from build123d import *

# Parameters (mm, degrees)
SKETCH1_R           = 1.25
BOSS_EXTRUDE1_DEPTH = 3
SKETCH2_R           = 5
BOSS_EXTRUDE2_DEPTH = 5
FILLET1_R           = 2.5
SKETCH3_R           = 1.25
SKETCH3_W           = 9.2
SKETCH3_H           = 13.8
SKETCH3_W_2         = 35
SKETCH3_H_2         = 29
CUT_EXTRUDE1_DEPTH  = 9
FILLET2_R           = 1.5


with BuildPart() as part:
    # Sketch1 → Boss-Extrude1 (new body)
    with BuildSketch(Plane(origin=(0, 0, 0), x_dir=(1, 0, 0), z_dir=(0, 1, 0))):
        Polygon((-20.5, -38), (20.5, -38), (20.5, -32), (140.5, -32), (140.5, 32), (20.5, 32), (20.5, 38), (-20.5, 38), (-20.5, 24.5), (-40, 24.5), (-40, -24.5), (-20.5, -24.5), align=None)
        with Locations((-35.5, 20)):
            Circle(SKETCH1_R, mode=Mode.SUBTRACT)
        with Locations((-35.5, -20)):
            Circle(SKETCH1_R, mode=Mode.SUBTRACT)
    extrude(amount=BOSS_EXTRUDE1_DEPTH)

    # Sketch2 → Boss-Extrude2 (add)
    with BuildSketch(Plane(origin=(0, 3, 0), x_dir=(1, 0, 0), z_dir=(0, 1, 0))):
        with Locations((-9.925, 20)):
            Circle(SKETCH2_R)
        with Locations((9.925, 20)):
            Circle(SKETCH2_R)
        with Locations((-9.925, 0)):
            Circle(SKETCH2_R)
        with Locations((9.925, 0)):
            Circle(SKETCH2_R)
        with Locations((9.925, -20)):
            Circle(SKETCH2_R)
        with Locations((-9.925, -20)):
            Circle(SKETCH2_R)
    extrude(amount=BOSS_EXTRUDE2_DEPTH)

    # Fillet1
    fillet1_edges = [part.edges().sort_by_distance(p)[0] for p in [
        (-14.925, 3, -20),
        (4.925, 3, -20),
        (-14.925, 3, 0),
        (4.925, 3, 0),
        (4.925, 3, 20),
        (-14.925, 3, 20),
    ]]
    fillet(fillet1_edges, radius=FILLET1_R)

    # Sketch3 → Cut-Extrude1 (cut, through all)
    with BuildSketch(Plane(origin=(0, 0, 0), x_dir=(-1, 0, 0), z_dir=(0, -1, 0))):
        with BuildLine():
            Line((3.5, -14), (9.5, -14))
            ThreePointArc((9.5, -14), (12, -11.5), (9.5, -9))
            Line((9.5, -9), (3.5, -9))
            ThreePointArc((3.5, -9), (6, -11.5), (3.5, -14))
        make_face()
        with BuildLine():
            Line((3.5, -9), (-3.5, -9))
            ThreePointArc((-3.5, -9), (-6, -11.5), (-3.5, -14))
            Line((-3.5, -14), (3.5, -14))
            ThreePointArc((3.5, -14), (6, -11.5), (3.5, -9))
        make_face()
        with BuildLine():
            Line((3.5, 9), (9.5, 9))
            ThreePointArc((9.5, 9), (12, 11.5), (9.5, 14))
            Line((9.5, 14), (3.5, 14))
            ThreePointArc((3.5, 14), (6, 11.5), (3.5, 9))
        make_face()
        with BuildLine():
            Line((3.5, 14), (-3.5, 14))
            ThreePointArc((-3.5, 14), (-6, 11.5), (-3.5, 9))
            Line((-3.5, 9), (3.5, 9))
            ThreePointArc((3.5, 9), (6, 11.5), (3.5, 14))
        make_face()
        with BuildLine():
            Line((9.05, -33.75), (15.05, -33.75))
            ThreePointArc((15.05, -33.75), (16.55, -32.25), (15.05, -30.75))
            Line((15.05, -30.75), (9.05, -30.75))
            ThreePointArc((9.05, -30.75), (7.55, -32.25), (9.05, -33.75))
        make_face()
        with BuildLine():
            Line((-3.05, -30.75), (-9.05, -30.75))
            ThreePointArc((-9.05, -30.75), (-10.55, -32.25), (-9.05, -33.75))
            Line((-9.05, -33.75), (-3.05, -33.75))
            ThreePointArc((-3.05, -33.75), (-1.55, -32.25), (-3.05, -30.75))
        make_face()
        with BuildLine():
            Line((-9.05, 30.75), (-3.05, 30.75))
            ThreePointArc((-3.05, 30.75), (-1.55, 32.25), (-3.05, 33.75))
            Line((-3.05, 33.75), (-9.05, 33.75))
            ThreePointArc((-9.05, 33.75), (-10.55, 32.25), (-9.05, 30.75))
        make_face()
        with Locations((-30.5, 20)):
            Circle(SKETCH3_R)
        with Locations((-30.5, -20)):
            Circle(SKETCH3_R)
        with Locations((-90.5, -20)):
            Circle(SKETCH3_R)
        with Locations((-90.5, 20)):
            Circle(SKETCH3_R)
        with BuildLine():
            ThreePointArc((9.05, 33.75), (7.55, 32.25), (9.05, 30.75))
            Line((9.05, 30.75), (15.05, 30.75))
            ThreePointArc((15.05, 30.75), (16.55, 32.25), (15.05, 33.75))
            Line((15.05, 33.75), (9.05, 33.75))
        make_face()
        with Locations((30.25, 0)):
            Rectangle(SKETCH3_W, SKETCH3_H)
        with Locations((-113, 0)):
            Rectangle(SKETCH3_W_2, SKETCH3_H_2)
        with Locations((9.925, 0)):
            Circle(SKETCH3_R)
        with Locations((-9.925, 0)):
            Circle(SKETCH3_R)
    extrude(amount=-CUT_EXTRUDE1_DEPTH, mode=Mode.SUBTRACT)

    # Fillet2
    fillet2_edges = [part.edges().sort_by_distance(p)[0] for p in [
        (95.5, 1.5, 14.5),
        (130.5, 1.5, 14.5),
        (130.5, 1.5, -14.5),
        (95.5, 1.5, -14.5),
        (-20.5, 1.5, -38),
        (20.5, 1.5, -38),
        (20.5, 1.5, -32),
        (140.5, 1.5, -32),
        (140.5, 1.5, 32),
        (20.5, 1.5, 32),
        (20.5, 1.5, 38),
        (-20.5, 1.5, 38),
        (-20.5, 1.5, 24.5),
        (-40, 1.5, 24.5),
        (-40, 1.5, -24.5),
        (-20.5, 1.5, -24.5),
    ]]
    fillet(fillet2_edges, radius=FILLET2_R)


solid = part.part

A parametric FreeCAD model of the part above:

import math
import FreeCAD as App
import Part
import Sketcher

V = App.Vector
Q = App.Units.Quantity


def edges_at(feature, points):
    """Names of the edges that pass closest to the given points."""
    edges = feature.Shape.Edges
    near = lambda p: min(range(len(edges)), key=lambda i: edges[i].distToShape(Part.Vertex(*p))[0])
    return sorted({f"Edge{near(p) + 1}" for p in points})


def add_polygon(sketch, points):
    """Adds a closed chain of lines whose ends are joined by coincident constraints."""
    first, n = sketch.GeometryCount, len(points)
    for a, b in zip(points, points[1:] + points[:1]):
        sketch.addGeometry(Part.LineSegment(App.Vector(*a, 0), App.Vector(*b, 0)), False)
    for i in range(n):
        sketch.addConstraint(Sketcher.Constraint("Coincident", first + i, 2, first + (i + 1) % n, 1))

doc = App.newDocument("Part")
body = doc.addObject("PartDesign::Body", "Body")

# Sketch on XZ plane
sketch1 = body.newObject("Sketcher::SketchObject", "Sketch")
sketch1.AttachmentSupport = (doc.getObject("XZ_Plane"), [""])
sketch1.MapMode = "FlatFace"
add_polygon(sketch1, [(-20.5, 38), (20.5, 38), (20.5, 32), (140.5, 32), (140.5, -32), (20.5, -32), (20.5, -38), (-20.5, -38), (-20.5, -24.5), (-40, -24.5), (-40, 24.5), (-20.5, 24.5)])  # lines 0-11
sketch1.addGeometry(Part.Circle(V(-35.5, 20, 0), V(0, 0, 1), 1.2), False)  # 12
sketch1.addGeometry(Part.Circle(V(-35.5, -20, 0), V(0, 0, 1), 1.2), False)  # 13
sketch1.addConstraint(Sketcher.Constraint("Horizontal", 0))
sketch1.addConstraint(Sketcher.Constraint("Vertical", 1))
sketch1.addConstraint(Sketcher.Constraint("Horizontal", 2))
sketch1.addConstraint(Sketcher.Constraint("Vertical", 3))
sketch1.addConstraint(Sketcher.Constraint("Horizontal", 4))
sketch1.addConstraint(Sketcher.Constraint("Vertical", 5))
sketch1.addConstraint(Sketcher.Constraint("Horizontal", 6))
sketch1.addConstraint(Sketcher.Constraint("Vertical", 7))
sketch1.addConstraint(Sketcher.Constraint("Horizontal", 8))
sketch1.addConstraint(Sketcher.Constraint("Vertical", 9))
sketch1.addConstraint(Sketcher.Constraint("Horizontal", 10))
sketch1.addConstraint(Sketcher.Constraint("Vertical", 11))
sketch1.addConstraint(Sketcher.Constraint("Equal", 12, 13))
sketch1.addConstraint(Sketcher.Constraint("Symmetric", 0, 2, 6, 2, -1, 1))
sketch1.addConstraint(Sketcher.Constraint("Symmetric", 12, 3, 13, 3, -1))
sketch1.addConstraint(Sketcher.Constraint("Symmetric", 1, 2, 4, 2, -1))
sketch1.addConstraint(Sketcher.Constraint("Symmetric", 7, 2, 10, 2, -1))
sketch1.addConstraint(Sketcher.Constraint("Diameter", 12, Q("2.5 mm")))
sketch1.addConstraint(Sketcher.Constraint("DistanceX", 0, 1, 0, 2, Q("41 mm")))
sketch1.addConstraint(Sketcher.Constraint("DistanceX", 2, 1, 2, 2, Q("120 mm")))
sketch1.addConstraint(Sketcher.Constraint("DistanceY", 1, 2, 1, 1, Q("6 mm")))
sketch1.addConstraint(Sketcher.Constraint("DistanceY", 3, 2, 3, 1, Q("64 mm")))
sketch1.addConstraint(Sketcher.Constraint("DistanceY", 9, 1, 9, 2, Q("49 mm")))
sketch1.addConstraint(Sketcher.Constraint("DistanceX", 8, 2, 8, 1, Q("19.5 mm")))
sketch1.addConstraint(Sketcher.Constraint("DistanceY", -1, 1, 12, 3, Q("20 mm")))
sketch1.addConstraint(Sketcher.Constraint("DistanceX", 12, 3, 0, 2, Q("56 mm")))
pad1 = body.newObject("PartDesign::Pad", "Pad")
pad1.Profile = sketch1
pad1.Length = 3
pad1.Reversed = True

# Sketch on XZ plane
sketch2 = body.newObject("Sketcher::SketchObject", "Sketch001")
sketch2.AttachmentSupport = (doc.getObject("XZ_Plane"), [""])
sketch2.MapMode = "FlatFace"
sketch2.AttachmentOffset = App.Placement(V(0, 0, -3), App.Rotation())
sketch2.addGeometry(Part.Circle(V(-10, -20, 0), V(0, 0, 1), 5), False)
sketch2.addGeometry(Part.Circle(V(10, -20, 0), V(0, 0, 1), 5), False)
sketch2.addGeometry(Part.Circle(V(-10, 0, 0), V(0, 0, 1), 5), False)
sketch2.addGeometry(Part.Circle(V(10, 0, 0), V(0, 0, 1), 5), False)
sketch2.addGeometry(Part.Circle(V(10, 20, 0), V(0, 0, 1), 5), False)
sketch2.addGeometry(Part.Circle(V(-10, 20, 0), V(0, 0, 1), 5), False)
sketch2.addConstraint(Sketcher.Constraint("Equal", 0, 1))
sketch2.addConstraint(Sketcher.Constraint("Equal", 1, 2))
sketch2.addConstraint(Sketcher.Constraint("Equal", 2, 3))
sketch2.addConstraint(Sketcher.Constraint("Equal", 3, 4))
sketch2.addConstraint(Sketcher.Constraint("Equal", 4, 5))
sketch2.addConstraint(Sketcher.Constraint("Symmetric", 2, 3, 3, 3, -1, 1))
sketch2.addConstraint(Sketcher.Constraint("Symmetric", 0, 3, 4, 3, -1, 1))
sketch2.addConstraint(Sketcher.Constraint("Symmetric", 1, 3, 5, 3, -1, 1))
sketch2.addConstraint(Sketcher.Constraint("Symmetric", 0, 3, 1, 3, -2))
sketch2.addConstraint(Sketcher.Constraint("PointOnObject", 2, 3, -1))
sketch2.addConstraint(Sketcher.Constraint("Vertical", 0, 3, 2, 3))
sketch2.addConstraint(Sketcher.Constraint("Diameter", 0, Q("10 mm")))
sketch2.addConstraint(Sketcher.Constraint("DistanceY", 0, 3, -1, 1, Q("20 mm")))
sketch2.addConstraint(Sketcher.Constraint("DistanceX", 0, 3, 1, 3, Q("19.85 mm")))
pad2 = body.newObject("PartDesign::Pad", "Pad001")
pad2.Profile = sketch2
pad2.Length = 5
pad2.Reversed = True
doc.recompute()

fillet = body.newObject("PartDesign::Fillet", "Fillet")
fillet.Base = (pad2, edges_at(pad2, [
    (-14.925, 3, -20),
    (4.925, 3, -20),
    (-14.925, 3, 0),
    (4.925, 3, 0),
    (4.925, 3, 20),
    (-14.925, 3, 20),
]))
fillet.Radius = 2.5

# Sketch on XZ plane
sketch3 = body.newObject("Sketcher::SketchObject", "Sketch002")
sketch3.AttachmentSupport = (doc.getObject("XZ_Plane"), [""])
sketch3.MapMode = "FlatFace"
sketch3.addGeometry(Part.ArcOfCircle(Part.Circle(V(-9.5, 11.5, 0), V(0, 0, 1), 2.5), math.radians(90), math.radians(270)), False)  # 0
sketch3.addGeometry(Part.LineSegment(V(-9.5, 9, 0), V(3.5, 9, 0)), False)  # 1
sketch3.addGeometry(Part.ArcOfCircle(Part.Circle(V(3.5, 11.5, 0), V(0, 0, 1), 2.5), math.radians(-90), math.radians(90)), False)  # 2
sketch3.addGeometry(Part.LineSegment(V(3.5, 14, 0), V(-9.5, 14, 0)), False)  # 3
sketch3.addGeometry(Part.ArcOfCircle(Part.Circle(V(-9.5, -11.5, 0), V(0, 0, 1), 2.5), math.radians(90), math.radians(270)), False)  # 4
sketch3.addGeometry(Part.LineSegment(V(-9.5, -14, 0), V(3.5, -14, 0)), False)  # 5
sketch3.addGeometry(Part.ArcOfCircle(Part.Circle(V(3.5, -11.5, 0), V(0, 0, 1), 2.5), math.radians(-90), math.radians(90)), False)  # 6
sketch3.addGeometry(Part.LineSegment(V(3.5, -9, 0), V(-9.5, -9, 0)), False)  # 7
sketch3.addGeometry(Part.LineSegment(V(-9.1, 33.8, 0), V(-15.1, 33.8, 0)), False)  # 8
sketch3.addGeometry(Part.ArcOfCircle(Part.Circle(V(-15.1, 32.2, 0), V(0, 0, 1), 1.5), math.radians(90), math.radians(270)), False)  # 9
sketch3.addGeometry(Part.LineSegment(V(-15.1, 30.8, 0), V(-9.1, 30.8, 0)), False)  # 10
sketch3.addGeometry(Part.ArcOfCircle(Part.Circle(V(-9.1, 32.2, 0), V(0, 0, 1), 1.5), math.radians(-90), math.radians(90)), False)  # 11
sketch3.addGeometry(Part.LineSegment(V(3, 30.8, 0), V(9.1, 30.8, 0)), False)  # 12
sketch3.addGeometry(Part.ArcOfCircle(Part.Circle(V(9.1, 32.2, 0), V(0, 0, 1), 1.5), math.radians(-90), math.radians(90)), False)  # 13
sketch3.addGeometry(Part.LineSegment(V(9.1, 33.8, 0), V(3, 33.8, 0)), False)  # 14
sketch3.addGeometry(Part.ArcOfCircle(Part.Circle(V(3, 32.2, 0), V(0, 0, 1), 1.5), math.radians(90), math.radians(270)), False)  # 15
sketch3.addGeometry(Part.LineSegment(V(9.1, -30.8, 0), V(3, -30.8, 0)), False)  # 16
sketch3.addGeometry(Part.ArcOfCircle(Part.Circle(V(3, -32.2, 0), V(0, 0, 1), 1.5), math.radians(90), math.radians(270)), False)  # 17
sketch3.addGeometry(Part.LineSegment(V(3, -33.8, 0), V(9.1, -33.8, 0)), False)  # 18
sketch3.addGeometry(Part.ArcOfCircle(Part.Circle(V(9.1, -32.2, 0), V(0, 0, 1), 1.5), math.radians(-90), math.radians(90)), False)  # 19
sketch3.addGeometry(Part.Circle(V(30.5, -20, 0), V(0, 0, 1), 1.2), False)  # 20
sketch3.addGeometry(Part.Circle(V(30.5, 20, 0), V(0, 0, 1), 1.2), False)  # 21
sketch3.addGeometry(Part.Circle(V(90.5, 20, 0), V(0, 0, 1), 1.2), False)  # 22
sketch3.addGeometry(Part.Circle(V(90.5, -20, 0), V(0, 0, 1), 1.2), False)  # 23
sketch3.addGeometry(Part.ArcOfCircle(Part.Circle(V(-9.1, -32.2, 0), V(0, 0, 1), 1.5), math.radians(-90), math.radians(90)), False)  # 24
sketch3.addGeometry(Part.LineSegment(V(-9.1, -30.8, 0), V(-15.1, -30.8, 0)), False)  # 25
sketch3.addGeometry(Part.ArcOfCircle(Part.Circle(V(-15.1, -32.2, 0), V(0, 0, 1), 1.5), math.radians(90), math.radians(270)), False)  # 26
sketch3.addGeometry(Part.LineSegment(V(-15.1, -33.8, 0), V(-9.1, -33.8, 0)), False)  # 27
add_polygon(sketch3, [(-25.6, -6.9), (-25.6, 6.9), (-34.9, 6.9), (-34.9, -6.9)])  # lines 28-31
add_polygon(sketch3, [(130.5, -14.5), (130.5, 14.5), (95.5, 14.5), (95.5, -14.5)])  # lines 32-35
sketch3.addGeometry(Part.Circle(V(-9.9, 0, 0), V(0, 0, 1), 1.2), False)  # 36
sketch3.addGeometry(Part.Circle(V(9.9, 0, 0), V(0, 0, 1), 1.2), False)  # 37
sketch3.addConstraint(Sketcher.Constraint("Tangent", 0, 2, 1, 1))
sketch3.addConstraint(Sketcher.Constraint("Tangent", 1, 2, 2, 1))
sketch3.addConstraint(Sketcher.Constraint("Tangent", 2, 2, 3, 1))
sketch3.addConstraint(Sketcher.Constraint("Tangent", 3, 2, 0, 1))
sketch3.addConstraint(Sketcher.Constraint("Tangent", 4, 2, 5, 1))
sketch3.addConstraint(Sketcher.Constraint("Tangent", 5, 2, 6, 1))
sketch3.addConstraint(Sketcher.Constraint("Tangent", 6, 2, 7, 1))
sketch3.addConstraint(Sketcher.Constraint("Tangent", 7, 2, 4, 1))
sketch3.addConstraint(Sketcher.Constraint("Tangent", 8, 2, 9, 1))
sketch3.addConstraint(Sketcher.Constraint("Tangent", 9, 2, 10, 1))
sketch3.addConstraint(Sketcher.Constraint("Tangent", 10, 2, 11, 1))
sketch3.addConstraint(Sketcher.Constraint("Tangent", 11, 2, 8, 1))
sketch3.addConstraint(Sketcher.Constraint("Tangent", 12, 2, 13, 1))
sketch3.addConstraint(Sketcher.Constraint("Tangent", 13, 2, 14, 1))
sketch3.addConstraint(Sketcher.Constraint("Tangent", 14, 2, 15, 1))
sketch3.addConstraint(Sketcher.Constraint("Tangent", 15, 2, 12, 1))
sketch3.addConstraint(Sketcher.Constraint("Tangent", 16, 2, 17, 1))
sketch3.addConstraint(Sketcher.Constraint("Tangent", 17, 2, 18, 1))
sketch3.addConstraint(Sketcher.Constraint("Tangent", 18, 2, 19, 1))
sketch3.addConstraint(Sketcher.Constraint("Tangent", 19, 2, 16, 1))
sketch3.addConstraint(Sketcher.Constraint("Tangent", 24, 2, 25, 1))
sketch3.addConstraint(Sketcher.Constraint("Tangent", 25, 2, 26, 1))
sketch3.addConstraint(Sketcher.Constraint("Tangent", 26, 2, 27, 1))
sketch3.addConstraint(Sketcher.Constraint("Tangent", 27, 2, 24, 1))
sketch3.addConstraint(Sketcher.Constraint("Horizontal", 1))
sketch3.addConstraint(Sketcher.Constraint("Horizontal", 3))
sketch3.addConstraint(Sketcher.Constraint("Horizontal", 5))
sketch3.addConstraint(Sketcher.Constraint("Horizontal", 7))
sketch3.addConstraint(Sketcher.Constraint("Horizontal", 8))
sketch3.addConstraint(Sketcher.Constraint("Horizontal", 10))
sketch3.addConstraint(Sketcher.Constraint("Horizontal", 12))
sketch3.addConstraint(Sketcher.Constraint("Horizontal", 14))
sketch3.addConstraint(Sketcher.Constraint("Horizontal", 16))
sketch3.addConstraint(Sketcher.Constraint("Horizontal", 18))
sketch3.addConstraint(Sketcher.Constraint("Horizontal", 25))
sketch3.addConstraint(Sketcher.Constraint("Horizontal", 27))
sketch3.addConstraint(Sketcher.Constraint("Vertical", 28))
sketch3.addConstraint(Sketcher.Constraint("Horizontal", 29))
sketch3.addConstraint(Sketcher.Constraint("Vertical", 30))
sketch3.addConstraint(Sketcher.Constraint("Horizontal", 31))
sketch3.addConstraint(Sketcher.Constraint("Vertical", 32))
sketch3.addConstraint(Sketcher.Constraint("Horizontal", 33))
sketch3.addConstraint(Sketcher.Constraint("Vertical", 34))
sketch3.addConstraint(Sketcher.Constraint("Horizontal", 35))
sketch3.addConstraint(Sketcher.Constraint("Equal", 2, 4))
sketch3.addConstraint(Sketcher.Constraint("Equal", 11, 13))
sketch3.addConstraint(Sketcher.Constraint("Equal", 15, 17))
sketch3.addConstraint(Sketcher.Constraint("Equal", 20, 21))
sketch3.addConstraint(Sketcher.Constraint("Equal", 21, 22))
sketch3.addConstraint(Sketcher.Constraint("Equal", 22, 23))
sketch3.addConstraint(Sketcher.Constraint("Equal", 19, 24))
sketch3.addConstraint(Sketcher.Constraint("Equal", 23, 36))
sketch3.addConstraint(Sketcher.Constraint("Equal", 36, 37))
sketch3.addConstraint(Sketcher.Constraint("Symmetric", 11, 3, 19, 3, -1, 1))
sketch3.addConstraint(Sketcher.Constraint("Symmetric", 13, 3, 24, 3, -1, 1))
sketch3.addConstraint(Sketcher.Constraint("Symmetric", 36, 3, 37, 3, -1, 1))
sketch3.addConstraint(Sketcher.Constraint("Symmetric", 11, 3, 13, 3, -2))
sketch3.addConstraint(Sketcher.Constraint("Symmetric", 0, 3, 4, 3, -1))
sketch3.addConstraint(Sketcher.Constraint("Symmetric", 20, 3, 21, 3, -1))
sketch3.addConstraint(Sketcher.Constraint("Symmetric", 22, 3, 23, 3, -1))
sketch3.addConstraint(Sketcher.Constraint("PointOnObject", 36, 3, -1))
sketch3.addConstraint(Sketcher.Constraint("Horizontal", 21, 3, 22, 3))
sketch3.addConstraint(Sketcher.Constraint("Vertical", 2, 3, 6, 3))
sketch3.addConstraint(Sketcher.Constraint("Vertical", 15, 3, 17, 3))
sketch3.addConstraint(Sketcher.Constraint("Vertical", 9, 3, 26, 3))
sketch3.addConstraint(Sketcher.Constraint("Equal", 10, 12))
sketch3.addConstraint(Sketcher.Constraint("Diameter", 20, Q("2.5 mm")))
sketch3.addConstraint(Sketcher.Constraint("Radius", 0, Q("2.5 mm")))
sketch3.addConstraint(Sketcher.Constraint("Radius", 9, Q("1.5 mm")))
sketch3.addConstraint(Sketcher.Constraint("DistanceX", 1, 1, 1, 2, Q("13 mm")))
sketch3.addConstraint(Sketcher.Constraint("DistanceX", 8, 2, 8, 1, Q("6 mm")))
sketch3.addConstraint(Sketcher.Constraint("DistanceX", 33, 2, 33, 1, Q("35 mm")))
sketch3.addConstraint(Sketcher.Constraint("DistanceY", 32, 1, 32, 2, Q("29 mm")))
sketch3.addConstraint(Sketcher.Constraint("DistanceX", 29, 2, 29, 1, Q("9.2 mm")))
sketch3.addConstraint(Sketcher.Constraint("DistanceY", 28, 1, 28, 2, Q("13.8 mm")))
sketch3.addConstraint(Sketcher.Constraint("DistanceY", 20, 3, -1, 1, Q("20 mm")))
sketch3.addConstraint(Sketcher.Constraint("DistanceY", -1, 1, 0, 2, Q("9 mm")))
sketch3.addConstraint(Sketcher.Constraint("DistanceX", 6, 3, 20, 3, Q("27 mm")))
sketch3.addConstraint(Sketcher.Constraint("DistanceX", 21, 3, 22, 3, Q("60 mm")))
sketch3.addConstraint(Sketcher.Constraint("DistanceX", 22, 3, 32, 2, Q("40 mm")))
sketch3.addConstraint(Sketcher.Constraint("DistanceX", 0, 3, -1, 1, Q("9.5 mm")))
sketch3.addConstraint(Sketcher.Constraint("DistanceY", -1, 1, 28, 2, Q("6.9 mm")))
sketch3.addConstraint(Sketcher.Constraint("DistanceY", -1, 1, 32, 2, Q("14.5 mm")))
sketch3.addConstraint(Sketcher.Constraint("DistanceX", 11, 3, 13, 3, Q("18.1 mm")))
sketch3.addConstraint(Sketcher.Constraint("DistanceY", 17, 3, 15, 3, Q("64.5 mm")))
sketch3.addConstraint(Sketcher.Constraint("DistanceX", 28, 2, -1, 1, Q("25.65 mm")))
sketch3.addConstraint(Sketcher.Constraint("DistanceX", 36, 3, 37, 3, Q("19.85 mm")))
pocket1 = body.newObject("PartDesign::Pocket", "Pocket")
pocket1.Profile = sketch3
pocket1.Type = "ThroughAll"
doc.recompute()

fillet2 = body.newObject("PartDesign::Fillet", "Fillet001")
fillet2.Base = (pocket1, edges_at(pocket1, [
    (95.5, 1.5, 14.5),
    (130.5, 1.5, 14.5),
    (130.5, 1.5, -14.5),
    (95.5, 1.5, -14.5),
    (-20.5, 1.5, -38),
    (20.5, 1.5, -38),
    (20.5, 1.5, -32),
    (140.5, 1.5, -32),
    (140.5, 1.5, 32),
    (20.5, 1.5, 32),
    (20.5, 1.5, 38),
    (-20.5, 1.5, 38),
    (-20.5, 1.5, 24.5),
    (-40, 1.5, 24.5),
    (-40, 1.5, -24.5),
    (-20.5, 1.5, -24.5),
]))
fillet2.Radius = 1.5

doc.recompute()
